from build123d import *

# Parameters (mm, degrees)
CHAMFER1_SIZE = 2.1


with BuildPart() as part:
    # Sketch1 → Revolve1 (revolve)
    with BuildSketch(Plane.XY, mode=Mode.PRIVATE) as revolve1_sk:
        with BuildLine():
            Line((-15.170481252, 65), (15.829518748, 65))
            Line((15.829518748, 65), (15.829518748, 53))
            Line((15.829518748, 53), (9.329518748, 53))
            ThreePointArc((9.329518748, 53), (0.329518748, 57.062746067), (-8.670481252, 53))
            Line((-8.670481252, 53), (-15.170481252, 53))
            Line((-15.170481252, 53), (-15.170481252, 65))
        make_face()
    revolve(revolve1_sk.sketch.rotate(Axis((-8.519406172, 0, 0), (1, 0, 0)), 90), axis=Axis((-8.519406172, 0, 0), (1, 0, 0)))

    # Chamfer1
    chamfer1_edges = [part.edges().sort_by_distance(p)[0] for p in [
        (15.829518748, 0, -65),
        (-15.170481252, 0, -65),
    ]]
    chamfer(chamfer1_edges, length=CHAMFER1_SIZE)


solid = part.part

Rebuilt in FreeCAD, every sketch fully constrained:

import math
import FreeCAD as App
import Part
import Sketcher
from FreeCAD import Vector


def edges_at(feature, points):
    """Names of the edges that pass closest to the given points."""
    edges = feature.Shape.Edges
    near = lambda p: min(range(len(edges)), key=lambda i: edges[i].distToShape(Part.Vertex(*p))[0])
    return sorted({f"Edge{near(p) + 1}" for p in points})

doc = App.newDocument("Part")
body = doc.addObject("PartDesign::Body", "Body")

# Sketch on XY plane
sketch1 = doc.addObject("Sketcher::SketchObject", "Sketch")
body.addObject(sketch1)
sketch1.AttachmentSupport = (doc.XY_Plane, [""])
sketch1.MapMode = "FlatFace"
sketch1.addGeometry(Part.LineSegment(Vector(15.829519, 65, 0), Vector(-15.170481, 65, 0)), False)
sketch1.addGeometry(Part.LineSegment(Vector(-15.170481, 65, 0), Vector(-15.170481, 53, 0)), False)
sketch1.addGeometry(Part.LineSegment(Vector(-15.170481, 53, 0), Vector(-8.670481, 53, 0)), False)
sketch1.addGeometry(Part.ArcOfCircle(Part.Circle(Vector(0.329519, 45.062746, 0), Vector(0, 0, 1), 12), math.radians(41.409622), math.radians(138.590378)), False)
sketch1.addGeometry(Part.LineSegment(Vector(9.329519, 53, 0), Vector(15.829519, 53, 0)), False)
sketch1.addGeometry(Part.LineSegment(Vector(15.829519, 53, 0), Vector(15.829519, 65, 0)), False)
sketch1.addConstraint(Sketcher.Constraint("Coincident", 0, 2, 1, 1))
sketch1.addConstraint(Sketcher.Constraint("Coincident", 1, 2, 2, 1))
sketch1.addConstraint(Sketcher.Constraint("Coincident", 2, 2, 3, 2))
sketch1.addConstraint(Sketcher.Constraint("Coincident", 3, 1, 4, 1))
sketch1.addConstraint(Sketcher.Constraint("Coincident", 4, 2, 5, 1))
sketch1.addConstraint(Sketcher.Constraint("Coincident", 5, 2, 0, 1))
sketch1.addConstraint(Sketcher.Constraint("Horizontal", 0))
sketch1.addConstraint(Sketcher.Constraint("Vertical", 1))
sketch1.addConstraint(Sketcher.Constraint("Horizontal", 2))
sketch1.addConstraint(Sketcher.Constraint("Horizontal", 4))
sketch1.addConstraint(Sketcher.Constraint("Vertical", 5))
sketch1.addConstraint(Sketcher.Constraint("Horizontal", 2, 2, 3, 1))
sketch1.addConstraint(Sketcher.Constraint("Equal", 2, 4))
sketch1.addConstraint(Sketcher.Constraint("Radius", 3, 12.0))
sketch1.addConstraint(Sketcher.Constraint("DistanceX", 0, 2, 0, 1, 31.0))
sketch1.addConstraint(Sketcher.Constraint("DistanceY", 1, 2, 1, 1, 12.0))
sketch1.addConstraint(Sketcher.Constraint("DistanceX", 2, 1, 2, 2, 6.5))
sketch1.addConstraint(Sketcher.Constraint("DistanceY", -1, 1, 0, 2, 65.0))
sketch1.addConstraint(Sketcher.Constraint("DistanceX", -1, 1, 3, 3, 0.329519))
revolution = doc.addObject("PartDesign::Revolution", "Revolution")
body.addObject(revolution)
revolution.Profile = sketch1
revolution.ReferenceAxis = (sketch1, ["H_Axis"])
revolution.Angle = 360
doc.recompute()

chamfer = doc.addObject("PartDesign::Chamfer", "Chamfer")
body.addObject(chamfer)
chamfer.Base = (revolution, edges_at(revolution, [(15.83, 0, -65), (-15.17, 0, -65)]))
chamfer.Size = 2.1

doc.recompute()
